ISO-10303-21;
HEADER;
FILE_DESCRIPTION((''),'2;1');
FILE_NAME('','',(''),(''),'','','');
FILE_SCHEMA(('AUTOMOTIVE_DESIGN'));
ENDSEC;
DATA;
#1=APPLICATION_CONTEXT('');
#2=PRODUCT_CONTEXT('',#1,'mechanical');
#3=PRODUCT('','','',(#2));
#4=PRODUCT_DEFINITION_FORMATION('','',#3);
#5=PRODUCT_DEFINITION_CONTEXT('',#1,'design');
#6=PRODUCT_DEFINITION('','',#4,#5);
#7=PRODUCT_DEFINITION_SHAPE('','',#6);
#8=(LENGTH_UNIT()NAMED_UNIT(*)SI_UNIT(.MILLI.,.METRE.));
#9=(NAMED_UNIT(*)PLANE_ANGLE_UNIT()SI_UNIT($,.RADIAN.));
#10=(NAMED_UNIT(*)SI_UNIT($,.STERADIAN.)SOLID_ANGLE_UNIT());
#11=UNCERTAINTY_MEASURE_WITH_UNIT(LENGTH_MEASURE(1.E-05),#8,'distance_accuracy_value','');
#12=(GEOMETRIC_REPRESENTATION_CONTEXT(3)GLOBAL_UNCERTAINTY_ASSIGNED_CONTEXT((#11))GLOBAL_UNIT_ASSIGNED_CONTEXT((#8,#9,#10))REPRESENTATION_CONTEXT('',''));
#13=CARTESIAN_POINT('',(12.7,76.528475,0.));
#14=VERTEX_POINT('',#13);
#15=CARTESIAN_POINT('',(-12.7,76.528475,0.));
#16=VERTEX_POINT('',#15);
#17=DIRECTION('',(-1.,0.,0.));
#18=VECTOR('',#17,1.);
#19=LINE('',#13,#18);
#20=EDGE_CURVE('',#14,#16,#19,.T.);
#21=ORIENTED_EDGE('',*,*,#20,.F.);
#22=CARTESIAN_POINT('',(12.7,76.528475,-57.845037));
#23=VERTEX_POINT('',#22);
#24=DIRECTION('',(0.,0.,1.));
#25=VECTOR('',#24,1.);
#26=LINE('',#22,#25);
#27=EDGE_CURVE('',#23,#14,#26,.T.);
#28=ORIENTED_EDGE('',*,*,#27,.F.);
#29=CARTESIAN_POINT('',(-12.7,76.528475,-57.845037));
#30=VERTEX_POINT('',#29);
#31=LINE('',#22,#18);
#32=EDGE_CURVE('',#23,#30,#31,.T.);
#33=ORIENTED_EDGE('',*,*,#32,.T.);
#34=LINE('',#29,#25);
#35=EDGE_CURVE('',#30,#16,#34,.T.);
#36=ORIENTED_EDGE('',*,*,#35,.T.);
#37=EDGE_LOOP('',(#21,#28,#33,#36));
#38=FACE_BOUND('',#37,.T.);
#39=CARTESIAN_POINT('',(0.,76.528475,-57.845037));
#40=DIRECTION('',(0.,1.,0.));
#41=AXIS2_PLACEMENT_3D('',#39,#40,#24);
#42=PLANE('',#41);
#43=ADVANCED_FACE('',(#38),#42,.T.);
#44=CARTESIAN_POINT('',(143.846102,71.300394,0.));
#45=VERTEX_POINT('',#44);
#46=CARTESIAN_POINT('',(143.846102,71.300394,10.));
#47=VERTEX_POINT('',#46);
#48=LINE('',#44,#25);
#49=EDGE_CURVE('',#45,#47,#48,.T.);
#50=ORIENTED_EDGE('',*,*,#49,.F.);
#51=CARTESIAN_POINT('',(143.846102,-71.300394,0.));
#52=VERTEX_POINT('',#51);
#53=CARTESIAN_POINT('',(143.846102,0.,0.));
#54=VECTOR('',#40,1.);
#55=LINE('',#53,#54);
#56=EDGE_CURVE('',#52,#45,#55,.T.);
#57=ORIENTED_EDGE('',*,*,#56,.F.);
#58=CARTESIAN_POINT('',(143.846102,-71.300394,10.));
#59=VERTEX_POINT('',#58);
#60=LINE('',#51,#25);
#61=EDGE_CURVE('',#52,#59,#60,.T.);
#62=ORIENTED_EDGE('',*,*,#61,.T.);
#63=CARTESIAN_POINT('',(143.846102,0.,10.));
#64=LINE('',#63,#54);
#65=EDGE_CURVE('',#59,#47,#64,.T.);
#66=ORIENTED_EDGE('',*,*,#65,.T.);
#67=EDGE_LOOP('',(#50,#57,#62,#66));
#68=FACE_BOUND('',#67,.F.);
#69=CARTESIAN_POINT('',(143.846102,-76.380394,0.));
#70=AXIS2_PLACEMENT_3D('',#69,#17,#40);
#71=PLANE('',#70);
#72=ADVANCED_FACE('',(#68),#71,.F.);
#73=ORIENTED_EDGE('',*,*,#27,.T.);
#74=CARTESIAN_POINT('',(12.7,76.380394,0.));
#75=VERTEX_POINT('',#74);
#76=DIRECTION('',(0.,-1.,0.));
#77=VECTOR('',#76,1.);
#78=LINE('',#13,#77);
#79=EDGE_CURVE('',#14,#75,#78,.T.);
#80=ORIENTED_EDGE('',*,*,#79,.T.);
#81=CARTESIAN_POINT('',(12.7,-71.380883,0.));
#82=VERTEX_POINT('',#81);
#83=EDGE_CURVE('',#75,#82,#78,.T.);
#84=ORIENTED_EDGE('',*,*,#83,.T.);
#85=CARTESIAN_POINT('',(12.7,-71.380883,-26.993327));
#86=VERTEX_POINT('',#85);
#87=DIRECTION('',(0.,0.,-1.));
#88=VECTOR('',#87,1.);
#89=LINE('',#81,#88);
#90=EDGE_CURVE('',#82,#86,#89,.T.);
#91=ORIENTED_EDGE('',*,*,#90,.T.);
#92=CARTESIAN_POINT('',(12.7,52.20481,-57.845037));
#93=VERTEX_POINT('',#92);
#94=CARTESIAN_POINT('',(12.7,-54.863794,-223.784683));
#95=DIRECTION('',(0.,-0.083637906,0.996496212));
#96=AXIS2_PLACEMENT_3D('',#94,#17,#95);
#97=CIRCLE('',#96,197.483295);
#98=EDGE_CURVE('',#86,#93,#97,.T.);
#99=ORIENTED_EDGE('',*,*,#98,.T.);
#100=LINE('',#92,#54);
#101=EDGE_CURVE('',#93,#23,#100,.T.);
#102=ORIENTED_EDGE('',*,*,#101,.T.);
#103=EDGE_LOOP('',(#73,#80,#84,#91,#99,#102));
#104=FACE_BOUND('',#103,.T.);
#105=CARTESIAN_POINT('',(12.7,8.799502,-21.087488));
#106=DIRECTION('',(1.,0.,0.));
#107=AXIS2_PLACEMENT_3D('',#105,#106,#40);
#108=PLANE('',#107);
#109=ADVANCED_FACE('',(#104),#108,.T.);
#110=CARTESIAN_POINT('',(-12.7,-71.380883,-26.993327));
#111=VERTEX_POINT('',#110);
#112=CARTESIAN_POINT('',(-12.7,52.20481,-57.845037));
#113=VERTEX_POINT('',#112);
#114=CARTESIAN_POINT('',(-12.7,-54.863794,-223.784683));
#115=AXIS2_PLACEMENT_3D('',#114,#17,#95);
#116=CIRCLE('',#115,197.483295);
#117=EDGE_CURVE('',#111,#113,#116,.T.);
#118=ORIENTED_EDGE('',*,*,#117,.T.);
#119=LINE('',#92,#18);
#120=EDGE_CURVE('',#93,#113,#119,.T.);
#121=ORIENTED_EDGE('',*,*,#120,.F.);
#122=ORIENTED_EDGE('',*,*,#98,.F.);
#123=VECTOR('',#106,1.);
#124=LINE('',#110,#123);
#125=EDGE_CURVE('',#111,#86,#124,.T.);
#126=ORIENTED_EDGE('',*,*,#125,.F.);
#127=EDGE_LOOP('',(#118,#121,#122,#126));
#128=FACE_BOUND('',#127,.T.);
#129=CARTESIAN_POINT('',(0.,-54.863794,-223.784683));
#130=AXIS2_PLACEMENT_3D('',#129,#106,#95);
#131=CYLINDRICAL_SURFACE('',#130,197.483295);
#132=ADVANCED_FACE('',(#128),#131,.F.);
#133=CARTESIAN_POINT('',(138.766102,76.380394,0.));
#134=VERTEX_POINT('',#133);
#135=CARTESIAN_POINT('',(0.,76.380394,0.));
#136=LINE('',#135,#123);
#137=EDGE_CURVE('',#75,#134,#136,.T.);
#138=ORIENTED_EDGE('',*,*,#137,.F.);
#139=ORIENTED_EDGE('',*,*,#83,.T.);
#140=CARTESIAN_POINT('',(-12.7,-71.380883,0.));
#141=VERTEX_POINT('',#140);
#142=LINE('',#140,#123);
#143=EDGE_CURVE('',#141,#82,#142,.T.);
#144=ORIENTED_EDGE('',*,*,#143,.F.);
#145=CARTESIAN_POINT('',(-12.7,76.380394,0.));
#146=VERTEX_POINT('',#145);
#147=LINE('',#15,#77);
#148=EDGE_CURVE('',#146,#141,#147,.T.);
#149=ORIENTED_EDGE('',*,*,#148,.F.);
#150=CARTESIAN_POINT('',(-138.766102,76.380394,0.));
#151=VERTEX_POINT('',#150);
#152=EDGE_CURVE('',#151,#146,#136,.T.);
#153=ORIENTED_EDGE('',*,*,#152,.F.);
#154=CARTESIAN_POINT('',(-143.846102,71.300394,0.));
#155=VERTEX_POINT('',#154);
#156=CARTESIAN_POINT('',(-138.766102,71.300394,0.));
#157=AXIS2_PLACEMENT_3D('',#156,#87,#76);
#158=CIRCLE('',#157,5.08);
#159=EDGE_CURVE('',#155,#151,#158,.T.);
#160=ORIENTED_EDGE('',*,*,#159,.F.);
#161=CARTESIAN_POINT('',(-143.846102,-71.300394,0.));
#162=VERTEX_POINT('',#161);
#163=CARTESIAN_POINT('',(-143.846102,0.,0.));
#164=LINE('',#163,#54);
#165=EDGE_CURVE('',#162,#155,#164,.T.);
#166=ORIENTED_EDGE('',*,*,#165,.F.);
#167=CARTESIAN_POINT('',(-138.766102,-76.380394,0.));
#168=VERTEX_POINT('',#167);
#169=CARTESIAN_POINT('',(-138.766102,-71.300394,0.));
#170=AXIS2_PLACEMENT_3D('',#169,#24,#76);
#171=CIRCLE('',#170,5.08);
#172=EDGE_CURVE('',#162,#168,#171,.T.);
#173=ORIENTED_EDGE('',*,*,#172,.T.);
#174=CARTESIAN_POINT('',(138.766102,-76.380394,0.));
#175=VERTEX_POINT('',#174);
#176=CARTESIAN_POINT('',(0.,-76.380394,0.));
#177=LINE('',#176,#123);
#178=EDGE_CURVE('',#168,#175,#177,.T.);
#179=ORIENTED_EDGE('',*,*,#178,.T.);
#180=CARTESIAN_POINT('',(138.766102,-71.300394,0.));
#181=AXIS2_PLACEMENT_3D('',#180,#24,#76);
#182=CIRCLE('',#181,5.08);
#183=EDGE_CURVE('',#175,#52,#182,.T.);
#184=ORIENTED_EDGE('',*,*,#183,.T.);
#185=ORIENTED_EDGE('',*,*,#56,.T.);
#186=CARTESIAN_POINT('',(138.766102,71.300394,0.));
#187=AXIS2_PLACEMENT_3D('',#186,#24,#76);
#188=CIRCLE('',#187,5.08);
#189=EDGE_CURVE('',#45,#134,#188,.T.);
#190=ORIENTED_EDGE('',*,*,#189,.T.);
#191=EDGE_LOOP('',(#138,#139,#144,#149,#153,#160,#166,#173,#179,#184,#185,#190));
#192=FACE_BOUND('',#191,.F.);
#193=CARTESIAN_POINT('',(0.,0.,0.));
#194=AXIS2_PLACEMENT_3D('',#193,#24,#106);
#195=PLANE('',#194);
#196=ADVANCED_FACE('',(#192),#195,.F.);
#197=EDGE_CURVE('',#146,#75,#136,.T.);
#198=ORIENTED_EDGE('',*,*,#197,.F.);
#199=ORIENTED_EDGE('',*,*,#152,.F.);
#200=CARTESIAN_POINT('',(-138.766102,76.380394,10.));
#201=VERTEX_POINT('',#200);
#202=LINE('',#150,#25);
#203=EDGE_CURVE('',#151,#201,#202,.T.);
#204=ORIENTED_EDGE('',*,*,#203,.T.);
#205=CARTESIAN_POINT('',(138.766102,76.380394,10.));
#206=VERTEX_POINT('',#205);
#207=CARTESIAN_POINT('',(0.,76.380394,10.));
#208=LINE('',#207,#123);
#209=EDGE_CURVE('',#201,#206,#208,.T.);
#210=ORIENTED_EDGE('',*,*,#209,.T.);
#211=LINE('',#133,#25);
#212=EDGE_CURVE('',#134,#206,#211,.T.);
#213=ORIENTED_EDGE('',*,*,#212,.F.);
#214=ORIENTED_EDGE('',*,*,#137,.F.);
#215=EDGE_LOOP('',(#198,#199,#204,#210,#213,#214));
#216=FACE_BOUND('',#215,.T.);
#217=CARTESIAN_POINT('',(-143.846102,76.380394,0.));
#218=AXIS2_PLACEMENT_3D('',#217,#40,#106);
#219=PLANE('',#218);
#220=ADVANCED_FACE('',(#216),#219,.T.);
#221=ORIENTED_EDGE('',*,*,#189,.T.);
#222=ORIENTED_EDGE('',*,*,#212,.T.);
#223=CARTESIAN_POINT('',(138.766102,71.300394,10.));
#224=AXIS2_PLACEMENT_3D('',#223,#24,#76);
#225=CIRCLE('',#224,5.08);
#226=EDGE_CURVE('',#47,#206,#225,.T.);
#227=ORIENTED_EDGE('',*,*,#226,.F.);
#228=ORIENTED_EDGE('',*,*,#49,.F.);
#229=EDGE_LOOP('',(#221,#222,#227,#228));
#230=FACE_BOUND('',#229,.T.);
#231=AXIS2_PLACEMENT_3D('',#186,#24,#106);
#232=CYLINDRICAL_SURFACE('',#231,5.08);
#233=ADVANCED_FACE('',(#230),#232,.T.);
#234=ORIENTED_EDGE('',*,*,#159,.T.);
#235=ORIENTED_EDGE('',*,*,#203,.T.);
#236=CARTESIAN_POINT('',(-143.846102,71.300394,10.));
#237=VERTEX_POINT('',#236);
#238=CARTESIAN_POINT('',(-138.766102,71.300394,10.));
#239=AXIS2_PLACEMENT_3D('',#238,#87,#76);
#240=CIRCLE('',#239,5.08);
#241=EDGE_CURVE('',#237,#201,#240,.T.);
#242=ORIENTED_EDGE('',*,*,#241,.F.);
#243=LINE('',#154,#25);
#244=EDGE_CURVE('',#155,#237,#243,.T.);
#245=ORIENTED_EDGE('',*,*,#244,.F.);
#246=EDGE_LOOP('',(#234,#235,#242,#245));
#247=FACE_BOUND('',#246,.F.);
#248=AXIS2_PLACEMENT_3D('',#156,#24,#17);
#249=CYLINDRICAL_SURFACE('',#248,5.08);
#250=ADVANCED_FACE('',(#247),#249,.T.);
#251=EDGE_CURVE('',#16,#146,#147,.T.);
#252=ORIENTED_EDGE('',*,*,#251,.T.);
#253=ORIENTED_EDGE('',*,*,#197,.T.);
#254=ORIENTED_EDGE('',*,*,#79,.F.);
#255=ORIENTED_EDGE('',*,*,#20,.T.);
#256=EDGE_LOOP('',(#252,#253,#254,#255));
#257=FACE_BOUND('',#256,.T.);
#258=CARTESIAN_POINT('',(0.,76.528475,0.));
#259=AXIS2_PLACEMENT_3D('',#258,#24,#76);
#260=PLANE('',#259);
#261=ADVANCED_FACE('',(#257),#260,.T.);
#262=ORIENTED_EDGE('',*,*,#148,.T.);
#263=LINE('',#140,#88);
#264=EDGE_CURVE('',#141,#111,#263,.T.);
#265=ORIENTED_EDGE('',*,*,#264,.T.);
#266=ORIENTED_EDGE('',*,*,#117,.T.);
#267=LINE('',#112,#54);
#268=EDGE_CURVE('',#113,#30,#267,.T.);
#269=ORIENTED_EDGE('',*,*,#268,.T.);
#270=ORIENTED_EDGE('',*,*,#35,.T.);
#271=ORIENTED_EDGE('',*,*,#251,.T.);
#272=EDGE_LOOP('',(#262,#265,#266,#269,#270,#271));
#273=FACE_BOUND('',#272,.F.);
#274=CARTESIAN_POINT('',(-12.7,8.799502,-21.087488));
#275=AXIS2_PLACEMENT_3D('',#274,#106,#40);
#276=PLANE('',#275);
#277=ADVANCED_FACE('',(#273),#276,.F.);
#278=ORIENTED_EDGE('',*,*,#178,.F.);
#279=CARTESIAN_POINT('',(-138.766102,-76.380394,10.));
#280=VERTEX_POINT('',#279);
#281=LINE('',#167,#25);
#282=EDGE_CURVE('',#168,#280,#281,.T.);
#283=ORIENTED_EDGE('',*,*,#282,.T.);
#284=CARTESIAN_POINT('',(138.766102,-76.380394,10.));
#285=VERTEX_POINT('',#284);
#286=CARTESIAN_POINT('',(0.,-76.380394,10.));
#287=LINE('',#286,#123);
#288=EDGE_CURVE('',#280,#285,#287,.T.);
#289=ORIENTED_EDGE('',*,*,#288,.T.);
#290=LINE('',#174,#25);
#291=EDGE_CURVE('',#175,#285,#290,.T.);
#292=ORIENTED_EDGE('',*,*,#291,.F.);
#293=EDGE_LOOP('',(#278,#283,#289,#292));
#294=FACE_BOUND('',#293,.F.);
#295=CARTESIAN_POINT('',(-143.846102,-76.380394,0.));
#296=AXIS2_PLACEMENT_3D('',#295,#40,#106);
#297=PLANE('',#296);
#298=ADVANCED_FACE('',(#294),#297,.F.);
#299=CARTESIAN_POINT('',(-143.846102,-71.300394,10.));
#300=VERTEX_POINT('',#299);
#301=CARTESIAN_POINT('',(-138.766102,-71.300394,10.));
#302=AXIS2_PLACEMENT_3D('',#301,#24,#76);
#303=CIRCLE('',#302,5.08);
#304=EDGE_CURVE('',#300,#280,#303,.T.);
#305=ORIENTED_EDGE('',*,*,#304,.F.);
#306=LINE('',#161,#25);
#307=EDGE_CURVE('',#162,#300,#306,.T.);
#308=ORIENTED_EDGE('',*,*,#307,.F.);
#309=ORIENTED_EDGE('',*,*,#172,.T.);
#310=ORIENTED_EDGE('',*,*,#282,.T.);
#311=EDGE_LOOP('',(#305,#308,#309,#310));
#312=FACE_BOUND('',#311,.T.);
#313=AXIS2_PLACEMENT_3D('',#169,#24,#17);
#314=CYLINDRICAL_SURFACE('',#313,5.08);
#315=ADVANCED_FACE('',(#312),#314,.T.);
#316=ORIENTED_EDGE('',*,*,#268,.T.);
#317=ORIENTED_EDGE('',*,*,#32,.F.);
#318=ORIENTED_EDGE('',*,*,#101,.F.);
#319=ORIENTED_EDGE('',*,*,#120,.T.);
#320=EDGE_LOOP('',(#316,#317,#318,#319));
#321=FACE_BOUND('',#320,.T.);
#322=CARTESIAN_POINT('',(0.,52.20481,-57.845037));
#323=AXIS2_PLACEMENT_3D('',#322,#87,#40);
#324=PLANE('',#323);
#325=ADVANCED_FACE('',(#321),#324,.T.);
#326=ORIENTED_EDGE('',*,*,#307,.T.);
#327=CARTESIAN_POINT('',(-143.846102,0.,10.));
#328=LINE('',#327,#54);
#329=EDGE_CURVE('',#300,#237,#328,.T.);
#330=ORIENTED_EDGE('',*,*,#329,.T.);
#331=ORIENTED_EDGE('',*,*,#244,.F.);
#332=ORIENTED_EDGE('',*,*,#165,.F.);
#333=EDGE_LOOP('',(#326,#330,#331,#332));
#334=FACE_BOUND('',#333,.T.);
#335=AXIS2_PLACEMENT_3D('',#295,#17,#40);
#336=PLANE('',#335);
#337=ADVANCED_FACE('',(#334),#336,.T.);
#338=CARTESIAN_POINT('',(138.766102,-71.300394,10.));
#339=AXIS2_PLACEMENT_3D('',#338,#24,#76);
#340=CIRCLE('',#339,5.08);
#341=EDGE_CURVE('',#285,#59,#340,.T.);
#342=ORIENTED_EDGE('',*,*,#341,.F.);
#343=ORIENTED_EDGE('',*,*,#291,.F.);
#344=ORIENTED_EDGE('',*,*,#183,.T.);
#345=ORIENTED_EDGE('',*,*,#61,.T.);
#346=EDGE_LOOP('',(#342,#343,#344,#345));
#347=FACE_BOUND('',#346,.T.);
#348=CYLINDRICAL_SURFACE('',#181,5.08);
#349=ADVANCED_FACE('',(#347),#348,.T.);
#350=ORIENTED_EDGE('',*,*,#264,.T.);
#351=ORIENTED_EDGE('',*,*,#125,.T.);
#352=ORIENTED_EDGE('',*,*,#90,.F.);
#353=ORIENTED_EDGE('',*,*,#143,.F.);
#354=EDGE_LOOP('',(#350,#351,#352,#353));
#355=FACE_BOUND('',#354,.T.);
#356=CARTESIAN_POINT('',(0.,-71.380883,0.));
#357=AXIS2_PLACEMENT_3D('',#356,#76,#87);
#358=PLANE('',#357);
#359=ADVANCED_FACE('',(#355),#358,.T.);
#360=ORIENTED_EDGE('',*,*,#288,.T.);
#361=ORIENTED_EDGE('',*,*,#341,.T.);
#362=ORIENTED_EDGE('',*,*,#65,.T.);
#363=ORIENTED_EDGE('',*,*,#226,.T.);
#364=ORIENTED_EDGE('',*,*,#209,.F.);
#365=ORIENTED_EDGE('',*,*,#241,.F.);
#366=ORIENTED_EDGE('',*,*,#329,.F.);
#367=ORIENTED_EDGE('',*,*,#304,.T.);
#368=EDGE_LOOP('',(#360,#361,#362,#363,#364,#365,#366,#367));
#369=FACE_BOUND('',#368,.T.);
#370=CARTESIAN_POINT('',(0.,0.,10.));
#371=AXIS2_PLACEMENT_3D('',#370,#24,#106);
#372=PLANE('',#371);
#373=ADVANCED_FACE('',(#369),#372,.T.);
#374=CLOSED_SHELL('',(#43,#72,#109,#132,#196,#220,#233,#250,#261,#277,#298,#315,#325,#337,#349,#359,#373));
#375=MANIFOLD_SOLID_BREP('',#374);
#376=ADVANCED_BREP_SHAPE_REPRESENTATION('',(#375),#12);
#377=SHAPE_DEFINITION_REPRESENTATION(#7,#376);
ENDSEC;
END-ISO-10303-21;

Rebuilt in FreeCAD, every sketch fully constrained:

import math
import FreeCAD as App
import Part
import Sketcher
from FreeCAD import Vector
Q = App.Units.Quantity


def edges_at(feature, points):
    """Names of the edges that pass closest to the given points."""
    edges = feature.Shape.Edges
    near = lambda p: min(range(len(edges)), key=lambda i: edges[i].distToShape(Part.Vertex(*p))[0])
    return sorted({f"Edge{near(p) + 1}" for p in points})

doc = App.newDocument("Part")
params = doc.addObject("Spreadsheet::Sheet", "Params")
for row, (alias, value) in enumerate([
    ("pad1_length", "10 mm"),
    ("fillet_radius", "0.2 in"),
    ("pad2_length", "1 in"),
], start=1):
    params.set(f"A{row}", alias)
    params.set(f"B{row}", "=" + value)
    params.setAlias(f"B{row}", alias)

body = doc.addObject("PartDesign::Body", "Body")

# Sketch on XY plane
sketch1 = body.newObject("Sketcher::SketchObject", "Sketch")
sketch1.AttachmentSupport = (doc.getObject("XY_Plane"), [""])
sketch1.MapMode = "FlatFace"
sketch1.addGeometry(Part.LineSegment(Vector(-144, 76, 0), Vector(-144, -76, 0)), False)
sketch1.addGeometry(Part.LineSegment(Vector(-144, -76, 0), Vector(144, -76, 0)), False)
sketch1.addGeometry(Part.LineSegment(Vector(144, -76, 0), Vector(144, 76, 0)), False)
sketch1.addGeometry(Part.LineSegment(Vector(144, 76, 0), Vector(-144, 76, 0)), False)
sketch1.addConstraint(Sketcher.Constraint("Coincident", 0, 2, 1, 1))
sketch1.addConstraint(Sketcher.Constraint("Coincident", 1, 2, 2, 1))
sketch1.addConstraint(Sketcher.Constraint("Coincident", 2, 2, 3, 1))
sketch1.addConstraint(Sketcher.Constraint("Coincident", 3, 2, 0, 1))
sketch1.addConstraint(Sketcher.Constraint("Vertical", 0))
sketch1.addConstraint(Sketcher.Constraint("Horizontal", 1))
sketch1.addConstraint(Sketcher.Constraint("Vertical", 2))
sketch1.addConstraint(Sketcher.Constraint("Horizontal", 3))
sketch1.addConstraint(Sketcher.Constraint("Symmetric", 0, 2, 2, 2, -1, 1))
sketch1.addConstraint(Sketcher.Constraint("DistanceY", 0, 2, 0, 1, Q("152.760788 mm")))
sketch1.addConstraint(Sketcher.Constraint("DistanceX", 0, 2, -1, 1, Q("143.846102 mm")))
pad1 = body.newObject("PartDesign::Pad", "Pad")
pad1.Profile = sketch1
pad1.setExpression("Length", "Params.pad1_length")
doc.recompute()

fillet = body.newObject("PartDesign::Fillet", "Fillet")
fillet.Base = (pad1, edges_at(pad1, [
    (143.846, -76.38, 5),
    (-143.846, 76.38, 5),
    (-143.846, -76.38, 5),
    (143.846, 76.38, 5),
]))
fillet.setExpression("Radius", "Params.fillet_radius")

# Sketch on YZ plane
sketch2 = body.newObject("Sketcher::SketchObject", "Sketch001")
sketch2.AttachmentSupport = (doc.getObject("YZ_Plane"), [""])
sketch2.MapMode = "FlatFace"
sketch2.addGeometry(Part.LineSegment(Vector(77, 0, 0), Vector(-71, 0, 0)), False)
sketch2.addGeometry(Part.LineSegment(Vector(-71, 0, 0), Vector(-71, -27, 0)), False)
sketch2.addGeometry(Part.ArcOfCircle(Part.Circle(Vector(-55, -224, 0), Vector(0, 0, 1), 197), math.radians(57), math.radians(95)), False)
sketch2.addGeometry(Part.LineSegment(Vector(52, -58, 0), Vector(77, -58, 0)), False)
sketch2.addGeometry(Part.LineSegment(Vector(77, -58, 0), Vector(77, 0, 0)), False)
sketch2.addConstraint(Sketcher.Constraint("Coincident", 0, 2, 1, 1))
sketch2.addConstraint(Sketcher.Constraint("Coincident", 1, 2, 2, 2))
sketch2.addConstraint(Sketcher.Constraint("Coincident", 2, 1, 3, 1))
sketch2.addConstraint(Sketcher.Constraint("Coincident", 3, 2, 4, 1))
sketch2.addConstraint(Sketcher.Constraint("Coincident", 4, 2, 0, 1))
sketch2.addConstraint(Sketcher.Constraint("Horizontal", 0))
sketch2.addConstraint(Sketcher.Constraint("Vertical", 1))
sketch2.addConstraint(Sketcher.Constraint("Horizontal", 3))
sketch2.addConstraint(Sketcher.Constraint("Vertical", 4))
sketch2.addConstraint(Sketcher.Constraint("PointOnObject", 0, 2, -1))
sketch2.addConstraint(Sketcher.Constraint("Radius", 2, Q("197.483295 mm")))
sketch2.addConstraint(Sketcher.Constraint("DistanceX", 0, 2, 0, 1, Q("147.909358 mm")))
sketch2.addConstraint(Sketcher.Constraint("DistanceX", 3, 1, 3, 2, Q("24.323665 mm")))
sketch2.addConstraint(Sketcher.Constraint("DistanceY", 1, 2, 1, 1, Q("26.993327 mm")))
sketch2.addConstraint(Sketcher.Constraint("DistanceY", 4, 1, 4, 2, Q("57.845037 mm")))
sketch2.addConstraint(Sketcher.Constraint("DistanceX", -1, 1, 2, 1, Q("52.20481 mm")))
pad2 = body.newObject("PartDesign::Pad", "Pad001")
pad2.Profile = sketch2
pad2.setExpression("Length", "Params.pad2_length")
pad2.Midplane = True

doc.recompute()
